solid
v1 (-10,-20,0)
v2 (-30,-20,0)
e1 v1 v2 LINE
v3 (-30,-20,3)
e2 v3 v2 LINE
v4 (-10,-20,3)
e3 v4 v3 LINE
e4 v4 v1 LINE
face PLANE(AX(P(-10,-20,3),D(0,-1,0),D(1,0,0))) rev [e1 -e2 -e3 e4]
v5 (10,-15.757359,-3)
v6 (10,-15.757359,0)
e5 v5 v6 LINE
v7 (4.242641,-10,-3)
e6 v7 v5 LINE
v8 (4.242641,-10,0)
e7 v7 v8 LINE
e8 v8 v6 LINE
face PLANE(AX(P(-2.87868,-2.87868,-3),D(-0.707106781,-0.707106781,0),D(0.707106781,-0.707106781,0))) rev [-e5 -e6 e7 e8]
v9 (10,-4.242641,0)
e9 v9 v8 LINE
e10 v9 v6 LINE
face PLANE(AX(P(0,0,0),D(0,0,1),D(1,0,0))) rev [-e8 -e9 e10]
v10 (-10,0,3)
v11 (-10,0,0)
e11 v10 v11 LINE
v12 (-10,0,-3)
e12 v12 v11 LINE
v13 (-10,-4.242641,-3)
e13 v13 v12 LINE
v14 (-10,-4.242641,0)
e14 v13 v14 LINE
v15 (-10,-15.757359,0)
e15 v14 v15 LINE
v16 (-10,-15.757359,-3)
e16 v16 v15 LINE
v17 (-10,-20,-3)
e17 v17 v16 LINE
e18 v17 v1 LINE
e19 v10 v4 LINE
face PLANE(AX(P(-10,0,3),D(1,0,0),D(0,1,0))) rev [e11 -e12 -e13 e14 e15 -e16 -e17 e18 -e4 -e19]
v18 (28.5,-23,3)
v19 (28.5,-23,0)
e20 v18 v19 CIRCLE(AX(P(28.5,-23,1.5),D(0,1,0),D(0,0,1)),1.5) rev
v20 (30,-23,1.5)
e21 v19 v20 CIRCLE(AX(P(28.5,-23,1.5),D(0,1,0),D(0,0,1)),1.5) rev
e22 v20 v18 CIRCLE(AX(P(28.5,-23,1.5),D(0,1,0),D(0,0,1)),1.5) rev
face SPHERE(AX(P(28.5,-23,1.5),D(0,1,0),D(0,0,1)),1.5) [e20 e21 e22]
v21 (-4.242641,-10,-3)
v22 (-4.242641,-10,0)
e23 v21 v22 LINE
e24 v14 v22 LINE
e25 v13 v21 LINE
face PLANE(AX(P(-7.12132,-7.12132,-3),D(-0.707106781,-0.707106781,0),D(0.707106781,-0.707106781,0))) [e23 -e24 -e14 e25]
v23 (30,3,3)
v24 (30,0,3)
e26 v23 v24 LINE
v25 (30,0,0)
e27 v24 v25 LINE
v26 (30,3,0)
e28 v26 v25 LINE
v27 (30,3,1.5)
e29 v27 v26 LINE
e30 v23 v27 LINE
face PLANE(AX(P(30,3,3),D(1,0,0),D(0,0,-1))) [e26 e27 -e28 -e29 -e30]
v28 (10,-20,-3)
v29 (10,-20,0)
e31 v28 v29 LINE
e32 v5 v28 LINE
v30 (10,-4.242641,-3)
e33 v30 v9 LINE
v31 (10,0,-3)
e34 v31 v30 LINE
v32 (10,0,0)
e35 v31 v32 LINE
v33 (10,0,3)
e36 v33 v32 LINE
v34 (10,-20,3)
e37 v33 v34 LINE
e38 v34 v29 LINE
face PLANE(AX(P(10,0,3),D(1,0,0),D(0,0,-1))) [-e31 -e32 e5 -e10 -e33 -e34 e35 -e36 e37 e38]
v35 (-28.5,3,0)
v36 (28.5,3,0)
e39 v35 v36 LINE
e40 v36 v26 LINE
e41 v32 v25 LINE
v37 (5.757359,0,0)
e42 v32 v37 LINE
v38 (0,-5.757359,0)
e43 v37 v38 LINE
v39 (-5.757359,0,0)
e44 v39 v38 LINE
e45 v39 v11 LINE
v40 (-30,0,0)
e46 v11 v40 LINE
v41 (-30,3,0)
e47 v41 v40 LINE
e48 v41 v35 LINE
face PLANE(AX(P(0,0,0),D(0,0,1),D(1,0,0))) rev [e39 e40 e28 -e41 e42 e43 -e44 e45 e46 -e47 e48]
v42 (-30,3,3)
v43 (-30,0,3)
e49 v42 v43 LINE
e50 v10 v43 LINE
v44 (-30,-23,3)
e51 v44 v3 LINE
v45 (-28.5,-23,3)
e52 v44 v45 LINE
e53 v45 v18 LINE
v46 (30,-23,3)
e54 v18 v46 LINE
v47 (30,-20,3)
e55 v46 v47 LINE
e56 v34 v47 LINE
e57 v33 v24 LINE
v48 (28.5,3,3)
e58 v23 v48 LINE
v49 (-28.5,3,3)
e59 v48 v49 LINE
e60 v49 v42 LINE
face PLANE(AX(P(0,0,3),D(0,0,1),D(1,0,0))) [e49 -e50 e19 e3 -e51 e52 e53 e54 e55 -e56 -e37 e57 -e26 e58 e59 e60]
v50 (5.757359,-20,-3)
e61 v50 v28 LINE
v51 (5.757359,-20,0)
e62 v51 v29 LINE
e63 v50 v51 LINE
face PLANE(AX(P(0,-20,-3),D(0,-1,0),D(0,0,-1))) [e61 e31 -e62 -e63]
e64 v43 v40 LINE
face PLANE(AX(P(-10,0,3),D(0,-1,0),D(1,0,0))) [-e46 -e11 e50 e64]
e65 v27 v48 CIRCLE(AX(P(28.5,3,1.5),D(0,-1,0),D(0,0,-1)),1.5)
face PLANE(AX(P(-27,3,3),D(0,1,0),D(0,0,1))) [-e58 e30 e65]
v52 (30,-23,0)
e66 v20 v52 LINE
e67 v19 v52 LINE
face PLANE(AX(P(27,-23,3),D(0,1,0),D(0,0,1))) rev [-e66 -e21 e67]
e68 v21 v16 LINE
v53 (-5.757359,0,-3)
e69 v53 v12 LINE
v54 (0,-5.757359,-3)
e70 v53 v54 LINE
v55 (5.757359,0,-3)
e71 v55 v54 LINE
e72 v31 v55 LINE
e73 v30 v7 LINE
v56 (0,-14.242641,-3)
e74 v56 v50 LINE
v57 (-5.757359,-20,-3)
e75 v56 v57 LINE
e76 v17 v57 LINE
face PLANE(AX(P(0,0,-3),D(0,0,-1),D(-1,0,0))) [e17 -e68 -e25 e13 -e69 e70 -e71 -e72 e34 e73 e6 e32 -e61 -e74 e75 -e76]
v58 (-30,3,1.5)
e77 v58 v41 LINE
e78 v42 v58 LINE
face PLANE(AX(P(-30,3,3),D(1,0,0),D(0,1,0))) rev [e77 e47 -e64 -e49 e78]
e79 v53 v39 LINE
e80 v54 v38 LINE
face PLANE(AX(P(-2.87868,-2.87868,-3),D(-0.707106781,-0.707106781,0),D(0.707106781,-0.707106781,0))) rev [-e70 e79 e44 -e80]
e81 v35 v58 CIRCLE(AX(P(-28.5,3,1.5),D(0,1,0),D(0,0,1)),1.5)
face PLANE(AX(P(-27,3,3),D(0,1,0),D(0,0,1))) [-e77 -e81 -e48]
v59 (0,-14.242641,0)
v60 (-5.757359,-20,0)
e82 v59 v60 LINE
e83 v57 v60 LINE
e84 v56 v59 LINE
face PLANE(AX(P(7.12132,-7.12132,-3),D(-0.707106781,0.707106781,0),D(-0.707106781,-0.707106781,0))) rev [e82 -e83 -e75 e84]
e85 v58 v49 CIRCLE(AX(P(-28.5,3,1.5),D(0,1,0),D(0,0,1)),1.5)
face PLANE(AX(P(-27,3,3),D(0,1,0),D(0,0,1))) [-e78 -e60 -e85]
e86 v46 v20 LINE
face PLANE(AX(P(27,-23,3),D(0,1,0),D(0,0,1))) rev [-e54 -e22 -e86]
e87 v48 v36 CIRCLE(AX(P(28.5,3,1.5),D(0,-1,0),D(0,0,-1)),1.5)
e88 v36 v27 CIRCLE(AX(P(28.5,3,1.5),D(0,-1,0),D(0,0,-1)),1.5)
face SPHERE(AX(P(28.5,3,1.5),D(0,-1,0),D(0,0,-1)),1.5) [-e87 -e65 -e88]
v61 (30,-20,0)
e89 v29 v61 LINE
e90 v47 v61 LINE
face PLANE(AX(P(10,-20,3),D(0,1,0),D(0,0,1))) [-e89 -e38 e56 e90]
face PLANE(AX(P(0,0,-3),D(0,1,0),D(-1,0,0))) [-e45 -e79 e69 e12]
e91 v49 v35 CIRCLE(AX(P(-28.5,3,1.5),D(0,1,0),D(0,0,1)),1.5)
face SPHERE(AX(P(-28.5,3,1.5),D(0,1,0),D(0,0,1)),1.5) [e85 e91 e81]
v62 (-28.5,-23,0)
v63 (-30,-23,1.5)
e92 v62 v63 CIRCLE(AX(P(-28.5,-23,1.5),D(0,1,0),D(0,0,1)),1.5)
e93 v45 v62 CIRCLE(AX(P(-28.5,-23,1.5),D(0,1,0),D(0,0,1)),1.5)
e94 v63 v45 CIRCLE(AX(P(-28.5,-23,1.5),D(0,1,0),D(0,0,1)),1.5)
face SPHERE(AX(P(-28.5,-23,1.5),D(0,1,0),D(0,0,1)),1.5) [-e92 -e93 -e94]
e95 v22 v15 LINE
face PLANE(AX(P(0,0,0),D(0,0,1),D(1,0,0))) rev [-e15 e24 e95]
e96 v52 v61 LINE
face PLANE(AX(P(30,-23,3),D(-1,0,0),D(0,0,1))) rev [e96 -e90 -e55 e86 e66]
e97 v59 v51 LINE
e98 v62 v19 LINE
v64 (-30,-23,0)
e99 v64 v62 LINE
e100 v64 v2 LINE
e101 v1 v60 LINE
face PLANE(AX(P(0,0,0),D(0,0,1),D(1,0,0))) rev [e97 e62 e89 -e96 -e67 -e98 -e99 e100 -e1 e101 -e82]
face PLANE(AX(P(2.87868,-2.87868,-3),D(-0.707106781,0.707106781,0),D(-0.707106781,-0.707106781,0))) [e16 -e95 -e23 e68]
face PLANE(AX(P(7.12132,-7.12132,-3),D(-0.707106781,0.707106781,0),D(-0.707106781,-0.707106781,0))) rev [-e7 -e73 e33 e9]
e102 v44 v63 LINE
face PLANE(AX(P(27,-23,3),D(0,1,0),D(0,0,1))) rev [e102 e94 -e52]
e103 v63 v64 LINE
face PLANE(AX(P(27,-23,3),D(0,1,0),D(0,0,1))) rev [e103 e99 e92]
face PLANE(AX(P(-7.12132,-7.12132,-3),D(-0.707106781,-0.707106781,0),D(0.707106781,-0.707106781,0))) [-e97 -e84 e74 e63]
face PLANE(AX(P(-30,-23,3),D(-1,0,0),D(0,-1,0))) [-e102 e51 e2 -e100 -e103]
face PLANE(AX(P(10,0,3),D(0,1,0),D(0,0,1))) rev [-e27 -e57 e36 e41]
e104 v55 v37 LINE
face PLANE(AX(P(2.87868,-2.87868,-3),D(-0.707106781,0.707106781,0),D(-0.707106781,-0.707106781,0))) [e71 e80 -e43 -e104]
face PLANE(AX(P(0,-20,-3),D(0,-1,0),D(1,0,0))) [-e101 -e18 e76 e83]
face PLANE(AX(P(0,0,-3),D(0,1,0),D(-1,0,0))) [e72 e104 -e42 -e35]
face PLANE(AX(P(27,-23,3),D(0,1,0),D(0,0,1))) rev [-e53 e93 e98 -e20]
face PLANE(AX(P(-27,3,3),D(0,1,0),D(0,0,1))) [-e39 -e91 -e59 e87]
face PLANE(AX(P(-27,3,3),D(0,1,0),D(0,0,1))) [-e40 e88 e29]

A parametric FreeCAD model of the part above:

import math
import FreeCAD as App
import Part
import Sketcher

doc = App.newDocument("Part")
body = doc.addObject("PartDesign::Body", "Body")

# Sketch on XY plane
sketch1 = doc.addObject("Sketcher::SketchObject", "Sketch")
body.addObject(sketch1)
sketch1.AttachmentSupport = (doc.XY_Plane, [""])
sketch1.MapMode = "FlatFace"
sketch1.addGeometry([
    Part.LineSegment(App.Vector(10, 0, 0), App.Vector(30, 0, 0)),  # 0
    Part.LineSegment(App.Vector(30, 0, 0), App.Vector(30, 3, 0)),  # 1
    Part.LineSegment(App.Vector(30, 3, 0), App.Vector(-30, 3, 0)),  # 2
    Part.LineSegment(App.Vector(-30, 3, 0), App.Vector(-30, 0, 0)),  # 3
    Part.LineSegment(App.Vector(-30, 0, 0), App.Vector(-10, 0, 0)),  # 4
    Part.LineSegment(App.Vector(-10, 0, 0), App.Vector(-10, -20, 0)),  # 5
    Part.LineSegment(App.Vector(-10, -20, 0), App.Vector(-30, -20, 0)),  # 6
    Part.LineSegment(App.Vector(-30, -20, 0), App.Vector(-30, -23, 0)),  # 7
    Part.LineSegment(App.Vector(-30, -23, 0), App.Vector(30, -23, 0)),  # 8
    Part.LineSegment(App.Vector(30, -23, 0), App.Vector(30, -20, 0)),  # 9
    Part.LineSegment(App.Vector(30, -20, 0), App.Vector(10, -20, 0)),  # 10
    Part.LineSegment(App.Vector(10, -20, 0), App.Vector(10, 0, 0)),  # 11
], False)
sketch1.addConstraint([
    Sketcher.Constraint("Coincident", 0, 2, 1, 1),
    Sketcher.Constraint("Coincident", 1, 2, 2, 1),
    Sketcher.Constraint("Coincident", 2, 2, 3, 1),
    Sketcher.Constraint("Coincident", 3, 2, 4, 1),
    Sketcher.Constraint("Coincident", 4, 2, 5, 1),
    Sketcher.Constraint("Coincident", 5, 2, 6, 1),
    Sketcher.Constraint("Coincident", 6, 2, 7, 1),
    Sketcher.Constraint("Coincident", 7, 2, 8, 1),
    Sketcher.Constraint("Coincident", 8, 2, 9, 1),
    Sketcher.Constraint("Coincident", 9, 2, 10, 1),
    Sketcher.Constraint("Coincident", 10, 2, 11, 1),
    Sketcher.Constraint("Coincident", 11, 2, 0, 1),
    Sketcher.Constraint("Horizontal", 0),
    Sketcher.Constraint("Vertical", 1),
    Sketcher.Constraint("Horizontal", 2),
    Sketcher.Constraint("Vertical", 3),
    Sketcher.Constraint("Horizontal", 4),
    Sketcher.Constraint("Vertical", 5),
    Sketcher.Constraint("Horizontal", 6),
    Sketcher.Constraint("Vertical", 7),
    Sketcher.Constraint("Horizontal", 8),
    Sketcher.Constraint("Vertical", 9),
    Sketcher.Constraint("Horizontal", 10),
    Sketcher.Constraint("Vertical", 11),
    Sketcher.Constraint("Symmetric", 0, 2, 3, 2, -1, 1),
    Sketcher.Constraint("Symmetric", 6, 2, 9, 2, -2),
    Sketcher.Constraint("Symmetric", 4, 2, 11, 2, -2),
    Sketcher.Constraint("Vertical", 3, 2, 6, 2),
    Sketcher.Constraint("Equal", 10, 5),
    Sketcher.Constraint("Equal", 3, 7),
    Sketcher.Constraint("DistanceX", 0, 1, 0, 2, 20.0),
    Sketcher.Constraint("DistanceX", 2, 2, 2, 1, 60.0),
    Sketcher.Constraint("DistanceY", 1, 1, 1, 2, 3.0),
])
pad1 = doc.addObject("PartDesign::Pad", "Pad")
body.addObject(pad1)
pad1.Profile = sketch1
pad1.Length = 3

# Sketch on XZ plane
sketch2 = doc.addObject("Sketcher::SketchObject", "Sketch001")
body.addObject(sketch2)
sketch2.AttachmentSupport = (doc.XZ_Plane, [""])
sketch2.MapMode = "FlatFace"
sketch2.AttachmentOffset = App.Placement(App.Vector(0, 0, -3), App.Rotation())
sketch2.addGeometry([
    Part.LineSegment(App.Vector(27, 1.5, 0), App.Vector(30, 1.5, 0)),
    Part.ArcOfCircle(Part.Circle(App.Vector(28.5, 1.5, 0), App.Vector(0, 0, 1), 1.5), math.radians(180), math.radians(360)),
], False)
sketch2.addGeometry(Part.LineSegment(App.Vector(27, 1.5, 0), App.Vector(30, 1.5, 0)), True)  # axis
sketch2.addConstraint([
    Sketcher.Constraint("Coincident", 0, 1, 1, 1),
    Sketcher.Constraint("Coincident", 1, 2, 0, 2),
    Sketcher.Constraint("Horizontal", 0),
    Sketcher.Constraint("Horizontal", 2),
    Sketcher.Constraint("Coincident", 2, 1, 0, 1),
    Sketcher.Constraint("Horizontal", 1, 3, 0, 1),
    Sketcher.Constraint("Equal", 0, 2),
    Sketcher.Constraint("Radius", 1, 1.5),
    Sketcher.Constraint("DistanceX", -1, 1, 0, 1, 27.0),
    Sketcher.Constraint("DistanceY", -1, 1, 1, 3, 1.5),
])
revolution = doc.addObject("PartDesign::Revolution", "Revolution")
body.addObject(revolution)
revolution.Profile = sketch2
revolution.ReferenceAxis = (sketch2, ["Axis0"])
revolution.Angle = 180

# Sketch on XY plane
sketch3 = doc.addObject("Sketcher::SketchObject", "Sketch002")
body.addObject(sketch3)
sketch3.AttachmentSupport = (doc.XY_Plane, [""])
sketch3.MapMode = "FlatFace"
sketch3.addGeometry([
    Part.LineSegment(App.Vector(5.8, 0, 0), App.Vector(10, 0, 0)),  # 0
    Part.LineSegment(App.Vector(10, 0, 0), App.Vector(10, -4.2, 0)),  # 1
    Part.LineSegment(App.Vector(10, -4.2, 0), App.Vector(4.2, -10, 0)),  # 2
    Part.LineSegment(App.Vector(4.2, -10, 0), App.Vector(10, -15.8, 0)),  # 3
    Part.LineSegment(App.Vector(10, -15.8, 0), App.Vector(10, -20, 0)),  # 4
    Part.LineSegment(App.Vector(10, -20, 0), App.Vector(5.8, -20, 0)),  # 5
    Part.LineSegment(App.Vector(5.8, -20, 0), App.Vector(0, -14.2, 0)),  # 6
    Part.LineSegment(App.Vector(0, -14.2, 0), App.Vector(-5.8, -20, 0)),  # 7
    Part.LineSegment(App.Vector(-5.8, -20, 0), App.Vector(-10, -20, 0)),  # 8
    Part.LineSegment(App.Vector(-10, -20, 0), App.Vector(-10, -15.8, 0)),  # 9
    Part.LineSegment(App.Vector(-10, -15.8, 0), App.Vector(-4.2, -10, 0)),  # 10
    Part.LineSegment(App.Vector(-4.2, -10, 0), App.Vector(-10, -4.2, 0)),  # 11
    Part.LineSegment(App.Vector(-10, -4.2, 0), App.Vector(-10, 0, 0)),  # 12
    Part.LineSegment(App.Vector(-10, 0, 0), App.Vector(-5.8, 0, 0)),  # 13
    Part.LineSegment(App.Vector(-5.8, 0, 0), App.Vector(0, -5.8, 0)),  # 14
    Part.LineSegment(App.Vector(0, -5.8, 0), App.Vector(5.8, 0, 0)),  # 15
], False)
sketch3.addConstraint([
    Sketcher.Constraint("Coincident", 0, 2, 1, 1),
    Sketcher.Constraint("Coincident", 1, 2, 2, 1),
    Sketcher.Constraint("Coincident", 2, 2, 3, 1),
    Sketcher.Constraint("Coincident", 3, 2, 4, 1),
    Sketcher.Constraint("Coincident", 4, 2, 5, 1),
    Sketcher.Constraint("Coincident", 5, 2, 6, 1),
    Sketcher.Constraint("Coincident", 6, 2, 7, 1),
    Sketcher.Constraint("Coincident", 7, 2, 8, 1),
    Sketcher.Constraint("Coincident", 8, 2, 9, 1),
    Sketcher.Constraint("Coincident", 9, 2, 10, 1),
    Sketcher.Constraint("Coincident", 10, 2, 11, 1),
    Sketcher.Constraint("Coincident", 11, 2, 12, 1),
    Sketcher.Constraint("Coincident", 12, 2, 13, 1),
    Sketcher.Constraint("Coincident", 13, 2, 14, 1),
    Sketcher.Constraint("Coincident", 14, 2, 15, 1),
    Sketcher.Constraint("Coincident", 15, 2, 0, 1),
    Sketcher.Constraint("Horizontal", 0),
    Sketcher.Constraint("Vertical", 1),
    Sketcher.Constraint("Vertical", 4),
    Sketcher.Constraint("Horizontal", 5),
    Sketcher.Constraint("Horizontal", 8),
    Sketcher.Constraint("Vertical", 9),
    Sketcher.Constraint("Vertical", 12),
    Sketcher.Constraint("Horizontal", 13),
    Sketcher.Constraint("Symmetric", 0, 2, 12, 2, -1, 1),
    Sketcher.Constraint("Symmetric", 5, 2, 7, 2, -2),
    Sketcher.Constraint("Symmetric", 3, 2, 9, 2, -2),
    Sketcher.Constraint("Symmetric", 2, 2, 10, 2, -2),
    Sketcher.Constraint("Symmetric", 13, 2, 15, 2, -2),
    Sketcher.Constraint("PointOnObject", 6, 2, -2),
    Sketcher.Constraint("PointOnObject", 14, 2, -2),
    Sketcher.Constraint("Perpendicular", 2, 3),
    Sketcher.Constraint("Parallel", 3, 6),
    Sketcher.Constraint("Perpendicular", 6, 7),
    Sketcher.Constraint("Perpendicular", 10, 11),
    Sketcher.Constraint("Parallel", 11, 14),
    Sketcher.Constraint("Vertical", 1, 2, 3, 2),
    Sketcher.Constraint("Vertical", 7, 2, 13, 2),
    Sketcher.Constraint("Equal", 13, 1),
    Sketcher.Constraint("Equal", 1, 4),
    Sketcher.Constraint("Equal", 3, 6),
    Sketcher.Constraint("DistanceX", -1, 1, 0, 2, 10.0),
    Sketcher.Constraint("DistanceX", 0, 1, 0, 2, 4.242641),
])
pad2 = doc.addObject("PartDesign::Pad", "Pad001")
body.addObject(pad2)
pad2.Profile = sketch3
pad2.Length = 3
pad2.Reversed = True

# Sketch on XZ plane
sketch4 = doc.addObject("Sketcher::SketchObject", "Sketch003")
body.addObject(sketch4)
sketch4.AttachmentSupport = (doc.XZ_Plane, [""])
sketch4.MapMode = "FlatFace"
sketch4.AttachmentOffset = App.Placement(App.Vector(0, 0, 23), App.Rotation())
sketch4.addGeometry([
    Part.ArcOfCircle(Part.Circle(App.Vector(28.5, 1.5, 0), App.Vector(0, 0, 1), 1.5), math.radians(90), math.radians(180)),  # 0
    Part.LineSegment(App.Vector(27, 1.5, 0), App.Vector(30, 1.5, 0)),  # 1
    Part.ArcOfCircle(Part.Circle(App.Vector(28.5, 1.5, 0), App.Vector(0, 0, 1), 1.5), math.radians(0), math.radians(90)),  # 2
    Part.ArcOfCircle(Part.Circle(App.Vector(-28.5, 1.5, 0), App.Vector(0, 0, 1), 1.5), math.radians(0), math.radians(180)),  # 3
    Part.LineSegment(App.Vector(-30, 1.5, 0), App.Vector(-27, 1.5, 0)),  # 4
], False)
sketch4.addGeometry(Part.LineSegment(App.Vector(-30, 1.5, 0), App.Vector(30, 1.5, 0)), True)  # axis
sketch4.addConstraint([
    Sketcher.Constraint("Coincident", 0, 2, 1, 1),
    Sketcher.Constraint("Coincident", 1, 2, 2, 1),
    Sketcher.Constraint("Tangent", 2, 2, 0, 1),
    Sketcher.Constraint("Coincident", 3, 1, 4, 2),
    Sketcher.Constraint("Coincident", 4, 1, 3, 2),
    Sketcher.Constraint("Horizontal", 1),
    Sketcher.Constraint("Horizontal", 4),
    Sketcher.Constraint("Horizontal", 5),
    Sketcher.Constraint("Coincident", 5, 1, 4, 1),
    Sketcher.Constraint("Coincident", 5, 2, 1, 2),
    Sketcher.Constraint("Equal", 0, 2),
    Sketcher.Constraint("Equal", 2, 3),
    Sketcher.Constraint("Symmetric", 0, 3, 3, 3, -2),
    Sketcher.Constraint("Horizontal", 3, 3, 0, 2),
    Sketcher.Constraint("Vertical", 0, 3, 2, 2),
    Sketcher.Constraint("Radius", 0, 1.5),
    Sketcher.Constraint("DistanceX", 5, 1, 5, 2, 60.0),
    Sketcher.Constraint("DistanceY", -1, 1, 2, 2, 3.0),
])
revolution2 = doc.addObject("PartDesign::Revolution", "Revolution001")
body.addObject(revolution2)
revolution2.Profile = sketch4
revolution2.ReferenceAxis = (sketch4, ["Axis0"])
revolution2.Angle = 360

# Sketch on XZ plane
sketch5 = doc.addObject("Sketcher::SketchObject", "Sketch004")
body.addObject(sketch5)
sketch5.AttachmentSupport = (doc.XZ_Plane, [""])
sketch5.MapMode = "FlatFace"
sketch5.AttachmentOffset = App.Placement(App.Vector(0, 0, -3), App.Rotation())
sketch5.addGeometry([
    Part.LineSegment(App.Vector(-27, 1.5, 0), App.Vector(-30, 1.5, 0)),
    Part.ArcOfCircle(Part.Circle(App.Vector(-28.5, 1.5, 0), App.Vector(0, 0, 1), 1.5), math.radians(0), math.radians(180)),
], False)
sketch5.addGeometry(Part.LineSegment(App.Vector(-30, 1.5, 0), App.Vector(-27, 1.5, 0)), True)  # axis
sketch5.addConstraint([
    Sketcher.Constraint("Coincident", 0, 1, 1, 1),
    Sketcher.Constraint("Coincident", 1, 2, 0, 2),
    Sketcher.Constraint("Horizontal", 0),
    Sketcher.Constraint("Horizontal", 2),
    Sketcher.Constraint("Coincident", 2, 1, 1, 2),
    Sketcher.Constraint("Horizontal", 1, 3, 0, 1),
    Sketcher.Constraint("Equal", 0, 2),
    Sketcher.Constraint("Radius", 1, 1.5),
    Sketcher.Constraint("DistanceX", 0, 1, -1, 1, 27.0),
    Sketcher.Constraint("DistanceY", -1, 1, 1, 3, 1.5),
])
revolution3 = doc.addObject("PartDesign::Revolution", "Revolution002")
body.addObject(revolution3)
revolution3.Profile = sketch5
revolution3.ReferenceAxis = (sketch5, ["Axis0"])
revolution3.Angle = 360

doc.recompute()
